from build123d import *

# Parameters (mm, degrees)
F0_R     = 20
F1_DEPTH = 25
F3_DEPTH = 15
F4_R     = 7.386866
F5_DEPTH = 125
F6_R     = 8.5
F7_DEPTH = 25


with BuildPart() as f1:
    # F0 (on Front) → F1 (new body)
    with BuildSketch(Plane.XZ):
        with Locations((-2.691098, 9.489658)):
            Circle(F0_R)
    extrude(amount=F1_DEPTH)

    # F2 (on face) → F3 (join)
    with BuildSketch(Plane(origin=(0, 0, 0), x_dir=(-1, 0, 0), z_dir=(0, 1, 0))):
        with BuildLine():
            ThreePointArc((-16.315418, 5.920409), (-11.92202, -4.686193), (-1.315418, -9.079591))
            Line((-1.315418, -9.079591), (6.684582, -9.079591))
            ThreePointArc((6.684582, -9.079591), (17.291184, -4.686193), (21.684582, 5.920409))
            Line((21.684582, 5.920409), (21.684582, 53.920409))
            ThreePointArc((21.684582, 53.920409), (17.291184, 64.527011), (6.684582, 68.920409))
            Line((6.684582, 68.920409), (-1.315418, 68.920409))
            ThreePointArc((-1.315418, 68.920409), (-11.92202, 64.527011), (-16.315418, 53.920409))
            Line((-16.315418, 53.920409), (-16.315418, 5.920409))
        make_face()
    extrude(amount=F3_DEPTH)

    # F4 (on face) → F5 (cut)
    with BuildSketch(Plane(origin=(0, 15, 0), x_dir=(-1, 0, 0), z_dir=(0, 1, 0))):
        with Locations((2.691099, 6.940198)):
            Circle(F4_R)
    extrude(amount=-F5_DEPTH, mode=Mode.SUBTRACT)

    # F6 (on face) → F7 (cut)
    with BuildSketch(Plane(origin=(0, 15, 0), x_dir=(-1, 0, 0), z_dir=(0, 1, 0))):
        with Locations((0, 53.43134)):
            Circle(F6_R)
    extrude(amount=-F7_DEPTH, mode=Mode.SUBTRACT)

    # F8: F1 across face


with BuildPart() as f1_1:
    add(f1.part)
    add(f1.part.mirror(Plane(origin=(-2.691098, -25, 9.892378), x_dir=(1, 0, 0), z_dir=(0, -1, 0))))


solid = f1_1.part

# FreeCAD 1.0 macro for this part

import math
import FreeCAD as App
import Part
import Sketcher
Q = App.Units.Quantity

doc = App.newDocument("Part")
params = doc.addObject("Spreadsheet::Sheet", "Params")
for row, (alias, value) in enumerate([
    ("sketch1_diameter", "40 mm"),
    ("pad1_length", "25 mm"),
    ("sketch2_radius", "14.999999 mm"),
    ("sketch2_width", "8 mm"),
    ("sketch2_height", "48 mm"),
    ("pad2_length", "15 mm"),
    ("pocket1_length", "125 mm"),
    ("sketch4_diameter", "17 mm"),
    ("pocket2_length", "25 mm"),
], start=1):
    params.set(f"A{row}", alias)
    params.set(f"B{row}", "=" + value)
    params.setAlias(f"B{row}", alias)

body = doc.addObject("PartDesign::Body", "Body")

sketch1 = body.newObject("Sketcher::SketchObject", "Sketch")
sketch1.AttachmentSupport = (doc.getObject("XZ_Plane"), [""])
sketch1.MapMode = "FlatFace"
sketch1.addGeometry(Part.Circle(App.Vector(-3, 9, 0), App.Vector(0, 0, 1), 20), False)
sketch1.addConstraint(Sketcher.Constraint("Diameter", 0, Q("40 mm")))
sketch1.addConstraint(Sketcher.Constraint("DistanceX", 0, 3, -1, 1, Q("2.691098 mm")))
sketch1.addConstraint(Sketcher.Constraint("DistanceY", -1, 1, 0, 3, Q("9.489658 mm")))
sketch1.setExpression("Constraints[0]", "Params.sketch1_diameter")
pad1 = body.newObject("PartDesign::Pad", "Pad")
pad1.Profile = sketch1
pad1.setExpression("Length", "Params.pad1_length")

sketch2 = body.newObject("Sketcher::SketchObject", "Sketch001")
sketch2.AttachmentSupport = (doc.getObject("XZ_Plane"), [""])
sketch2.MapMode = "FlatFace"
sketch2.addGeometry(Part.ArcOfCircle(Part.Circle(App.Vector(1, 6, 0), App.Vector(0, 0, 1), 15), math.radians(-90), math.radians(0)), False)
sketch2.addGeometry(Part.LineSegment(App.Vector(1, -9, 0), App.Vector(-7, -9, 0)), False)
sketch2.addGeometry(Part.ArcOfCircle(Part.Circle(App.Vector(-7, 6, 0), App.Vector(0, 0, 1), 15), math.radians(180), math.radians(270)), False)
sketch2.addGeometry(Part.LineSegment(App.Vector(-22, 6, 0), App.Vector(-22, 54, 0)), False)
sketch2.addGeometry(Part.ArcOfCircle(Part.Circle(App.Vector(-7, 54, 0), App.Vector(0, 0, 1), 15), math.radians(90), math.radians(180)), False)
sketch2.addGeometry(Part.LineSegment(App.Vector(-7, 69, 0), App.Vector(1, 69, 0)), False)
sketch2.addGeometry(Part.ArcOfCircle(Part.Circle(App.Vector(1, 54, 0), App.Vector(0, 0, 1), 15), math.radians(0), math.radians(90)), False)
sketch2.addGeometry(Part.LineSegment(App.Vector(16, 54, 0), App.Vector(16, 6, 0)), False)
sketch2.addConstraint(Sketcher.Constraint("Tangent", 0, 1, 1, 1))
sketch2.addConstraint(Sketcher.Constraint("Tangent", 1, 2, 2, 2))
sketch2.addConstraint(Sketcher.Constraint("Tangent", 2, 1, 3, 1))
sketch2.addConstraint(Sketcher.Constraint("Tangent", 3, 2, 4, 2))
sketch2.addConstraint(Sketcher.Constraint("Tangent", 4, 1, 5, 1))
sketch2.addConstraint(Sketcher.Constraint("Tangent", 5, 2, 6, 2))
sketch2.addConstraint(Sketcher.Constraint("Tangent", 6, 1, 7, 1))
sketch2.addConstraint(Sketcher.Constraint("Tangent", 7, 2, 0, 2))
sketch2.addConstraint(Sketcher.Constraint("Horizontal", 1))
sketch2.addConstraint(Sketcher.Constraint("Vertical", 3))
sketch2.addConstraint(Sketcher.Constraint("Horizontal", 5))
sketch2.addConstraint(Sketcher.Constraint("Vertical", 7))
sketch2.addConstraint(Sketcher.Constraint("Equal", 0, 2))
sketch2.addConstraint(Sketcher.Constraint("Equal", 2, 4))
sketch2.addConstraint(Sketcher.Constraint("Equal", 4, 6))
sketch2.addConstraint(Sketcher.Constraint("Radius", 0, Q("14.999999 mm")))
sketch2.addConstraint(Sketcher.Constraint("DistanceX", 1, 2, 1, 1, Q("8 mm")))
sketch2.addConstraint(Sketcher.Constraint("DistanceY", 3, 1, 3, 2, Q("48 mm")))
sketch2.addConstraint(Sketcher.Constraint("DistanceX", -1, 1, 0, 3, Q("1.315419 mm")))
sketch2.addConstraint(Sketcher.Constraint("DistanceY", -1, 1, 0, 3, Q("5.920408 mm")))
sketch2.setExpression("Constraints[15]", "Params.sketch2_radius")
sketch2.setExpression("Constraints[16]", "Params.sketch2_width")
sketch2.setExpression("Constraints[17]", "Params.sketch2_height")
pad2 = body.newObject("PartDesign::Pad", "Pad001")
pad2.Profile = sketch2
pad2.setExpression("Length", "Params.pad2_length")
pad2.Reversed = True

sketch3 = body.newObject("Sketcher::SketchObject", "Sketch002")
sketch3.AttachmentSupport = (doc.getObject("XZ_Plane"), [""])
sketch3.MapMode = "FlatFace"
sketch3.AttachmentOffset = App.Placement(App.Vector(0, 0, -15), App.Rotation())
sketch3.addGeometry(Part.Circle(App.Vector(-3, 7, 0), App.Vector(0, 0, 1), 7), False)
sketch3.addConstraint(Sketcher.Constraint("Diameter", 0, Q("14.773732 mm")))
sketch3.addConstraint(Sketcher.Constraint("DistanceX", 0, 3, -1, 1, Q("2.691099 mm")))
sketch3.addConstraint(Sketcher.Constraint("DistanceY", -1, 1, 0, 3, Q("6.940198 mm")))
pocket1 = body.newObject("PartDesign::Pocket", "Pocket")
pocket1.Profile = sketch3
pocket1.setExpression("Length", "Params.pocket1_length")
pocket1.Reversed = True

sketch4 = body.newObject("Sketcher::SketchObject", "Sketch003")
sketch4.AttachmentSupport = (doc.getObject("XZ_Plane"), [""])
sketch4.MapMode = "FlatFace"
sketch4.AttachmentOffset = App.Placement(App.Vector(0, 0, -15), App.Rotation())
sketch4.addGeometry(Part.Circle(App.Vector(0, 53, 0), App.Vector(0, 0, 1), 8), False)
sketch4.addConstraint(Sketcher.Constraint("PointOnObject", 0, 3, -2))
sketch4.addConstraint(Sketcher.Constraint("Diameter", 0, Q("17 mm")))
sketch4.addConstraint(Sketcher.Constraint("DistanceY", -1, 1, 0, 3, Q("53.43134 mm")))
sketch4.setExpression("Constraints[1]", "Params.sketch4_diameter")
pocket2 = body.newObject("PartDesign::Pocket", "Pocket001")
pocket2.Profile = sketch4
pocket2.setExpression("Length", "Params.pocket2_length")
pocket2.Reversed = True
body2 = doc.addObject("PartDesign::Body", "Body001")
doc.recompute()

body2.BaseFeature = body
doc.recompute()

mirroring = doc.addObject("Part::Mirroring", "Mirroring")
mirroring.Source = body
mirroring.Base = App.Vector(-2.691098, -25, 9.892378)
mirroring.Normal = App.Vector(0, -1, 0)
body3 = doc.addObject("PartDesign::Body", "Body002")
body3.BaseFeature = mirroring
boolean = body2.newObject("PartDesign::Boolean", "Boolean")
boolean.Type = "Fuse"
boolean.addObjects([body3])
doc.recompute()
mirroring.Visibility = False

doc.recompute()
